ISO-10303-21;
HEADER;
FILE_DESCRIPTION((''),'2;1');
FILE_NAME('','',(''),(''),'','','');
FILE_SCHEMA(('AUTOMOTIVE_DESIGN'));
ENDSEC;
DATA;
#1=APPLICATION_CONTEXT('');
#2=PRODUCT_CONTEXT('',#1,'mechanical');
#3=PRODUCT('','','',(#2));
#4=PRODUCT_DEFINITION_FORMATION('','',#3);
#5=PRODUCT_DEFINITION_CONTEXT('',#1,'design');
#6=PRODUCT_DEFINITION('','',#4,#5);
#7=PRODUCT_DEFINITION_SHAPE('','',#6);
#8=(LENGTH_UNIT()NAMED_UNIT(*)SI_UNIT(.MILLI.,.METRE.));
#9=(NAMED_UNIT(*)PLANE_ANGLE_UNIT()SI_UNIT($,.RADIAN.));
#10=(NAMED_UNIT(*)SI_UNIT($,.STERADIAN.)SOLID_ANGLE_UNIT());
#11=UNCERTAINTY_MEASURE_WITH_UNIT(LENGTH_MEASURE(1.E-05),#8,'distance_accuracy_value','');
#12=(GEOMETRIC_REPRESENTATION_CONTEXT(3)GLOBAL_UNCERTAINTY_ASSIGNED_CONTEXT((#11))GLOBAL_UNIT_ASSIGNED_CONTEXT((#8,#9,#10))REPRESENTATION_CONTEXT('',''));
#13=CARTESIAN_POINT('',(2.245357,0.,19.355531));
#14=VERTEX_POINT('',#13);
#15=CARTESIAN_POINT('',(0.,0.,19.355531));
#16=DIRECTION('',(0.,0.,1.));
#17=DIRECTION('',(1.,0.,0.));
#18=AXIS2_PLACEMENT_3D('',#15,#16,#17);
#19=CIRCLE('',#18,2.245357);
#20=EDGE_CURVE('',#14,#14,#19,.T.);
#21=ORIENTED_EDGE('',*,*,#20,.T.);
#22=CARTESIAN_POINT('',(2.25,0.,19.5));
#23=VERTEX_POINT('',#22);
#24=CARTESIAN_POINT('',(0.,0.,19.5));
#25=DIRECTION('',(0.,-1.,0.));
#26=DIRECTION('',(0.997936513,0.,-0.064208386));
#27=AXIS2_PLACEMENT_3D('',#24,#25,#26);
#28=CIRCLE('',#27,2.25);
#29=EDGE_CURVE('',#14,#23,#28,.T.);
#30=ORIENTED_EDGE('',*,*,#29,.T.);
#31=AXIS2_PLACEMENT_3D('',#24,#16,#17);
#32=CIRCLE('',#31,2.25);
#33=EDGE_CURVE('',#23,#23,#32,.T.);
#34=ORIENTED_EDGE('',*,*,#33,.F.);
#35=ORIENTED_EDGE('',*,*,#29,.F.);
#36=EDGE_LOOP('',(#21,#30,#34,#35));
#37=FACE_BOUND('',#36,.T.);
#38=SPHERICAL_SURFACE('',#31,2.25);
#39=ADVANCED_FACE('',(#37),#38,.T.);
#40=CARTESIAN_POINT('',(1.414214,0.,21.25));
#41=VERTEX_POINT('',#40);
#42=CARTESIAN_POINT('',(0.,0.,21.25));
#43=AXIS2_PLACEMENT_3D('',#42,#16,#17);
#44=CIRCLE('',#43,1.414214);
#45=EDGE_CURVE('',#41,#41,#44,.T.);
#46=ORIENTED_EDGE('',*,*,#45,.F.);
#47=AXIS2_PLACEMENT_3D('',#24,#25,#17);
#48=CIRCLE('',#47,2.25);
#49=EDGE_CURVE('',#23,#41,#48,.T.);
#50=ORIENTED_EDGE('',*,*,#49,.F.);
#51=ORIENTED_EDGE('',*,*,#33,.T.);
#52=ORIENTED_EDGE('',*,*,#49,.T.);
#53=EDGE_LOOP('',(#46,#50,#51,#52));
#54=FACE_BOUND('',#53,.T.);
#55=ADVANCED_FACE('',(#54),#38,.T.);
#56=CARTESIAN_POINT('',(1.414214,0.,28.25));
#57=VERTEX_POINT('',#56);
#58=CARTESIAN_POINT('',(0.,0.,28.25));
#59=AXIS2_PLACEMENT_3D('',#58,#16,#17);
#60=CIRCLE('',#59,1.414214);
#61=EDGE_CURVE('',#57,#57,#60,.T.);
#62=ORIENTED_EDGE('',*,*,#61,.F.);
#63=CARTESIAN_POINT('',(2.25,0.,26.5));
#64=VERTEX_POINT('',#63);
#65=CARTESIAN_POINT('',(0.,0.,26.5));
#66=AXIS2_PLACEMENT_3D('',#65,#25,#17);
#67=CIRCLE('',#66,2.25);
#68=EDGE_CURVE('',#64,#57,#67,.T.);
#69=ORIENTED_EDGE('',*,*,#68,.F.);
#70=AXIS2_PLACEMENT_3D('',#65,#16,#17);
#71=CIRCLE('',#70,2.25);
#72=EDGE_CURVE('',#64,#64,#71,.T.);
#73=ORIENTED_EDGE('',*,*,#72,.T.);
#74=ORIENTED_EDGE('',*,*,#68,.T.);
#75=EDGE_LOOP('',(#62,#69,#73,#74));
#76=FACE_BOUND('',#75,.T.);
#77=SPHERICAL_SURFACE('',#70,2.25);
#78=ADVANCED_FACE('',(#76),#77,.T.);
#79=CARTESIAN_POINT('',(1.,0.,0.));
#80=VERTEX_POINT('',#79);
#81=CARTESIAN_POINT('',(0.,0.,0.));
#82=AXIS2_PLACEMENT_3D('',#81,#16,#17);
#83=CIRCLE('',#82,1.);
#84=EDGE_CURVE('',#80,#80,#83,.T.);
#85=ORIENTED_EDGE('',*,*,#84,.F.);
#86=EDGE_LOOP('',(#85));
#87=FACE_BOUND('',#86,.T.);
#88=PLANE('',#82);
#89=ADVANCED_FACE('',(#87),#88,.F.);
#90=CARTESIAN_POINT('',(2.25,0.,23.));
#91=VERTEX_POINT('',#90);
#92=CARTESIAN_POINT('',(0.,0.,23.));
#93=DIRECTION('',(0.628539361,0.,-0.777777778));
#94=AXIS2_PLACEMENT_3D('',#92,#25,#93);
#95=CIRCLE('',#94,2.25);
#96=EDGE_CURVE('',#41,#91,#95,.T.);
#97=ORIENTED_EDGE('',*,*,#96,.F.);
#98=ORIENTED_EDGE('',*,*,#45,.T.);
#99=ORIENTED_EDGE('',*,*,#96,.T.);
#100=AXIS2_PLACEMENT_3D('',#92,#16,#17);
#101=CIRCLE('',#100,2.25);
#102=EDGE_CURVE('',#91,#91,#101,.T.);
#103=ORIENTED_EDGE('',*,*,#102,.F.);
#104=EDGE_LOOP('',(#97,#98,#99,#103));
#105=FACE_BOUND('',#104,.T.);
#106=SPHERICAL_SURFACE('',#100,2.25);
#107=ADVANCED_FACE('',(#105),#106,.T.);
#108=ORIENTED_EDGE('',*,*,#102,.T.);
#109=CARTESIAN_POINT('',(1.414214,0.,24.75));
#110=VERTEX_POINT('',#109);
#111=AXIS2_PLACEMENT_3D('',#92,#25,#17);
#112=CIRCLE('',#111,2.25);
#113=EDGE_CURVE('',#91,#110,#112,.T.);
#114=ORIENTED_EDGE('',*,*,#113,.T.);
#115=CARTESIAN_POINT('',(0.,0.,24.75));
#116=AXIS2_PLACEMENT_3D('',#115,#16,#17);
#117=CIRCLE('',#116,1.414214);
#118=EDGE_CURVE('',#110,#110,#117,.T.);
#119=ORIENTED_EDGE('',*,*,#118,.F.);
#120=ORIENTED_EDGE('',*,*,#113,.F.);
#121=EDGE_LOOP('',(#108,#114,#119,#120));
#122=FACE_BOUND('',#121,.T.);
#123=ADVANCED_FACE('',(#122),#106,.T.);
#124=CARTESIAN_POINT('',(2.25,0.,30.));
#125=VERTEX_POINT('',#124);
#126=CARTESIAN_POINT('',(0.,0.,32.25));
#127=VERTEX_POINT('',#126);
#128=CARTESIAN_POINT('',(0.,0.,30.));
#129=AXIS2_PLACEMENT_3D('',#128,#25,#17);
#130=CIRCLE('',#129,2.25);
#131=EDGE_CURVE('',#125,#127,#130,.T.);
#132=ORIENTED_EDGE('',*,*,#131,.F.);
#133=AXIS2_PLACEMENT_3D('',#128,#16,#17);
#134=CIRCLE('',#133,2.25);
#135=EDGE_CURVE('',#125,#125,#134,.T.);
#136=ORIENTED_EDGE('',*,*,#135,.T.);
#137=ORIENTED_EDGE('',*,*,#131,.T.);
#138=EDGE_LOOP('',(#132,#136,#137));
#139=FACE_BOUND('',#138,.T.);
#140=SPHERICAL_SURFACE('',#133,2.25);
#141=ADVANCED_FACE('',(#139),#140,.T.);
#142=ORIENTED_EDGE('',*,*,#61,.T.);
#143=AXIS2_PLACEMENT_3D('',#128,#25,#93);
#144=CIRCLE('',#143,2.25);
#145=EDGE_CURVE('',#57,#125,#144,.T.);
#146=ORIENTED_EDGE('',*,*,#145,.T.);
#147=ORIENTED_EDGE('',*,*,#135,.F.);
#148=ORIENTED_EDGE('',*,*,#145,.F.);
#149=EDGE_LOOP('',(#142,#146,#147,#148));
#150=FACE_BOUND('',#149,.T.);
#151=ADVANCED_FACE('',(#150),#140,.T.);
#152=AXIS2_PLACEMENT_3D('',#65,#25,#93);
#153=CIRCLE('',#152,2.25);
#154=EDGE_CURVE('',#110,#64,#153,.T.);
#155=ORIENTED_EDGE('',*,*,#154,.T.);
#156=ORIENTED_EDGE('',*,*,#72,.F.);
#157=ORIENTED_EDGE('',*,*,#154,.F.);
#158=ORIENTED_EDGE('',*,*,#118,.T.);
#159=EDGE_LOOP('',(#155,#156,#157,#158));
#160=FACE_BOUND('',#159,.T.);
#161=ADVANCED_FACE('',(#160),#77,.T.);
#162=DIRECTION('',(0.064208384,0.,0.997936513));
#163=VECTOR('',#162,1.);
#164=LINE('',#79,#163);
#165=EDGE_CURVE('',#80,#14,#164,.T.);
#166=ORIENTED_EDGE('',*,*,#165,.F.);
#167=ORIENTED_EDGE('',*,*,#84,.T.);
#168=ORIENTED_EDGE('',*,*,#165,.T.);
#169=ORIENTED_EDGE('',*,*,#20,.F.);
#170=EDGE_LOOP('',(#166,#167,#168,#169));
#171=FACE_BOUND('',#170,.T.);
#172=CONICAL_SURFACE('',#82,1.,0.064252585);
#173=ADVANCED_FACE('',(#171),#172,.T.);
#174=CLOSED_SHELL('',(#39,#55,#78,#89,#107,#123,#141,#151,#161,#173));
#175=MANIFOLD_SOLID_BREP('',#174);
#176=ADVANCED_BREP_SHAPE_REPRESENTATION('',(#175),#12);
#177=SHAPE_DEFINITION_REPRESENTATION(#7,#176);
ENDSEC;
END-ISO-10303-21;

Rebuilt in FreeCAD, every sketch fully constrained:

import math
import FreeCAD as App
import Part
import Sketcher

V = App.Vector
Q = App.Units.Quantity

doc = App.newDocument("Part")
body = doc.addObject("PartDesign::Body", "Body")

# Sketch on XZ plane
sketch1 = body.newObject("Sketcher::SketchObject", "Sketch")
sketch1.AttachmentSupport = (doc.getObject("XZ_Plane"), [""])
sketch1.MapMode = "FlatFace"
sketch1.addGeometry([
    Part.ArcOfCircle(Part.Circle(V(0, 30, 0), V(0, 0, 1), 2.25), math.radians(0), math.radians(90)),  # 0
    Part.LineSegment(V(0, 32.25, 0), V(0, 0, 0)),  # 1
    Part.LineSegment(V(0, 0, 0), V(1, 0, 0)),  # 2
    Part.LineSegment(V(1, 0, 0), V(2.245357, 19.355531, 0)),  # 3
    Part.ArcOfCircle(Part.Circle(V(0, 19.5, 0), V(0, 0, 1), 2.25), math.radians(-3.681402), math.radians(0)),  # 4
    Part.ArcOfCircle(Part.Circle(V(0, 19.5, 0), V(0, 0, 1), 2.25), math.radians(0), math.radians(51.057559)),  # 5
    Part.ArcOfCircle(Part.Circle(V(0, 23, 0), V(0, 0, 1), 2.25), math.radians(-51.057559), math.radians(0)),  # 6
    Part.ArcOfCircle(Part.Circle(V(0, 23, 0), V(0, 0, 1), 2.25), math.radians(0), math.radians(51.057559)),  # 7
    Part.ArcOfCircle(Part.Circle(V(0, 26.5, 0), V(0, 0, 1), 2.25), math.radians(-51.057559), math.radians(0)),  # 8
    Part.ArcOfCircle(Part.Circle(V(0, 26.5, 0), V(0, 0, 1), 2.25), math.radians(0), math.radians(51.057559)),  # 9
    Part.ArcOfCircle(Part.Circle(V(0, 30, 0), V(0, 0, 1), 2.25), math.radians(-51.057559), math.radians(0)),  # 10
], False)
sketch1.addConstraint([
    Sketcher.Constraint("Coincident", 0, 2, 1, 1),
    Sketcher.Constraint("Coincident", 1, 2, 2, 1),
    Sketcher.Constraint("Coincident", 2, 2, 3, 1),
    Sketcher.Constraint("Tangent", 3, 2, 4, 1),
    Sketcher.Constraint("Tangent", 4, 2, 5, 1),
    Sketcher.Constraint("Coincident", 5, 2, 6, 1),
    Sketcher.Constraint("Tangent", 6, 2, 7, 1),
    Sketcher.Constraint("Coincident", 7, 2, 8, 1),
    Sketcher.Constraint("Tangent", 8, 2, 9, 1),
    Sketcher.Constraint("Coincident", 9, 2, 10, 1),
    Sketcher.Constraint("Tangent", 10, 2, 0, 1),
    Sketcher.Constraint("Vertical", 1),
    Sketcher.Constraint("Horizontal", 2),
    Sketcher.Constraint("Coincident", 1, 2, -1, 1),
    Sketcher.Constraint("Equal", 0, 4),
    Sketcher.Constraint("Equal", 4, 5),
    Sketcher.Constraint("Equal", 5, 6),
    Sketcher.Constraint("Equal", 6, 7),
    Sketcher.Constraint("Equal", 7, 8),
    Sketcher.Constraint("Equal", 8, 9),
    Sketcher.Constraint("Equal", 9, 10),
    Sketcher.Constraint("PointOnObject", 0, 3, -2),
    Sketcher.Constraint("PointOnObject", 4, 3, -2),
    Sketcher.Constraint("PointOnObject", 6, 3, -2),
    Sketcher.Constraint("PointOnObject", 8, 3, -2),
    Sketcher.Constraint("Horizontal", 5, 3, 4, 2),
    Sketcher.Constraint("Horizontal", 7, 3, 6, 2),
    Sketcher.Constraint("Horizontal", 9, 3, 8, 2),
    Sketcher.Constraint("Horizontal", 0, 3, 10, 2),
    Sketcher.Constraint("Vertical", 5, 2, 7, 2),
    Sketcher.Constraint("Vertical", 7, 2, 9, 2),
    Sketcher.Constraint("DistanceX", 2, 1, 2, 2, Q("1 mm")),
    Sketcher.Constraint("Radius", 0, Q("2.25 mm")),
    Sketcher.Constraint("DistanceY", -1, 1, 0, 3, Q("30 mm")),
    Sketcher.Constraint("DistanceY", -1, 1, 6, 3, Q("23 mm")),
])
revolution = body.newObject("PartDesign::Revolution", "Revolution")
revolution.Profile = sketch1
revolution.ReferenceAxis = (sketch1, ["V_Axis"])
revolution.Angle = 360

doc.recompute()
